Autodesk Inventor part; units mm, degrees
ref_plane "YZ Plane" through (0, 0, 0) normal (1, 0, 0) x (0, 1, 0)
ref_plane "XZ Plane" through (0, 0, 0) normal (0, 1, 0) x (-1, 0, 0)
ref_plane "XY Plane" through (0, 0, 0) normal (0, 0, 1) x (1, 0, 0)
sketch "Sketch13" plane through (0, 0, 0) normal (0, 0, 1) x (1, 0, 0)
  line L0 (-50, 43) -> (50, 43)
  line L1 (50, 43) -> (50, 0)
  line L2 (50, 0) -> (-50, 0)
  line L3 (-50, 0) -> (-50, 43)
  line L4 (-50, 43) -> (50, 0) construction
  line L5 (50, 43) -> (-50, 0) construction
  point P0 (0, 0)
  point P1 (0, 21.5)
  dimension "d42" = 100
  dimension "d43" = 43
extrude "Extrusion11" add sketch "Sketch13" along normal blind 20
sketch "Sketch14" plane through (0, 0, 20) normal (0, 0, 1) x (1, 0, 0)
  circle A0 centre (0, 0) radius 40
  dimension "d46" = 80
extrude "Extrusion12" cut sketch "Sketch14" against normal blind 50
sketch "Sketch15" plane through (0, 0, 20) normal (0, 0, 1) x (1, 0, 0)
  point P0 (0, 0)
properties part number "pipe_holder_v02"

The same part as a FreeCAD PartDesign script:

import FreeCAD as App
import Part
import Sketcher
Q = App.Units.Quantity


def add_polygon(sketch, points):
    """Adds a closed chain of lines whose ends are joined by coincident constraints."""
    first, n = sketch.GeometryCount, len(points)
    for a, b in zip(points, points[1:] + points[:1]):
        sketch.addGeometry(Part.LineSegment(App.Vector(*a, 0), App.Vector(*b, 0)), False)
    for i in range(n):
        sketch.addConstraint(Sketcher.Constraint("Coincident", first + i, 2, first + (i + 1) % n, 1))

doc = App.newDocument("Part")
body = doc.addObject("PartDesign::Body", "Body")

# Sketch on XY plane
sketch1 = body.newObject("Sketcher::SketchObject", "Sketch")
sketch1.AttachmentSupport = (doc.getObject("XY_Plane"), [""])
sketch1.MapMode = "FlatFace"
add_polygon(sketch1, [(50, 43), (-50, 43), (-50, 0), (50, 0)])  # lines 0-3
sketch1.addConstraint([
    Sketcher.Constraint("Horizontal", 0),
    Sketcher.Constraint("Vertical", 1),
    Sketcher.Constraint("Horizontal", 2),
    Sketcher.Constraint("Vertical", 3),
    Sketcher.Constraint("Symmetric", 1, 2, 2, 2, -1, 1),
    Sketcher.Constraint("DistanceX", 0, 2, 0, 1, Q("100 mm")),
    Sketcher.Constraint("DistanceY", 1, 2, 1, 1, Q("43 mm")),
])
pad1 = body.newObject("PartDesign::Pad", "Pad")
pad1.Profile = sketch1
pad1.Length = 20

# Sketch on XY plane
sketch2 = body.newObject("Sketcher::SketchObject", "Sketch001")
sketch2.AttachmentSupport = (doc.getObject("XY_Plane"), [""])
sketch2.MapMode = "FlatFace"
sketch2.AttachmentOffset = App.Placement(App.Vector(0, 0, 20), App.Rotation())
sketch2.addGeometry(Part.Circle(App.Vector(0, 0, 0), App.Vector(0, 0, 1), 40), False)
sketch2.addConstraint([
    Sketcher.Constraint("Coincident", 0, 3, -1, 1),
    Sketcher.Constraint("Diameter", 0, Q("80 mm")),
])
pocket1 = body.newObject("PartDesign::Pocket", "Pocket")
pocket1.Profile = sketch2
pocket1.Length = 50

doc.recompute()
